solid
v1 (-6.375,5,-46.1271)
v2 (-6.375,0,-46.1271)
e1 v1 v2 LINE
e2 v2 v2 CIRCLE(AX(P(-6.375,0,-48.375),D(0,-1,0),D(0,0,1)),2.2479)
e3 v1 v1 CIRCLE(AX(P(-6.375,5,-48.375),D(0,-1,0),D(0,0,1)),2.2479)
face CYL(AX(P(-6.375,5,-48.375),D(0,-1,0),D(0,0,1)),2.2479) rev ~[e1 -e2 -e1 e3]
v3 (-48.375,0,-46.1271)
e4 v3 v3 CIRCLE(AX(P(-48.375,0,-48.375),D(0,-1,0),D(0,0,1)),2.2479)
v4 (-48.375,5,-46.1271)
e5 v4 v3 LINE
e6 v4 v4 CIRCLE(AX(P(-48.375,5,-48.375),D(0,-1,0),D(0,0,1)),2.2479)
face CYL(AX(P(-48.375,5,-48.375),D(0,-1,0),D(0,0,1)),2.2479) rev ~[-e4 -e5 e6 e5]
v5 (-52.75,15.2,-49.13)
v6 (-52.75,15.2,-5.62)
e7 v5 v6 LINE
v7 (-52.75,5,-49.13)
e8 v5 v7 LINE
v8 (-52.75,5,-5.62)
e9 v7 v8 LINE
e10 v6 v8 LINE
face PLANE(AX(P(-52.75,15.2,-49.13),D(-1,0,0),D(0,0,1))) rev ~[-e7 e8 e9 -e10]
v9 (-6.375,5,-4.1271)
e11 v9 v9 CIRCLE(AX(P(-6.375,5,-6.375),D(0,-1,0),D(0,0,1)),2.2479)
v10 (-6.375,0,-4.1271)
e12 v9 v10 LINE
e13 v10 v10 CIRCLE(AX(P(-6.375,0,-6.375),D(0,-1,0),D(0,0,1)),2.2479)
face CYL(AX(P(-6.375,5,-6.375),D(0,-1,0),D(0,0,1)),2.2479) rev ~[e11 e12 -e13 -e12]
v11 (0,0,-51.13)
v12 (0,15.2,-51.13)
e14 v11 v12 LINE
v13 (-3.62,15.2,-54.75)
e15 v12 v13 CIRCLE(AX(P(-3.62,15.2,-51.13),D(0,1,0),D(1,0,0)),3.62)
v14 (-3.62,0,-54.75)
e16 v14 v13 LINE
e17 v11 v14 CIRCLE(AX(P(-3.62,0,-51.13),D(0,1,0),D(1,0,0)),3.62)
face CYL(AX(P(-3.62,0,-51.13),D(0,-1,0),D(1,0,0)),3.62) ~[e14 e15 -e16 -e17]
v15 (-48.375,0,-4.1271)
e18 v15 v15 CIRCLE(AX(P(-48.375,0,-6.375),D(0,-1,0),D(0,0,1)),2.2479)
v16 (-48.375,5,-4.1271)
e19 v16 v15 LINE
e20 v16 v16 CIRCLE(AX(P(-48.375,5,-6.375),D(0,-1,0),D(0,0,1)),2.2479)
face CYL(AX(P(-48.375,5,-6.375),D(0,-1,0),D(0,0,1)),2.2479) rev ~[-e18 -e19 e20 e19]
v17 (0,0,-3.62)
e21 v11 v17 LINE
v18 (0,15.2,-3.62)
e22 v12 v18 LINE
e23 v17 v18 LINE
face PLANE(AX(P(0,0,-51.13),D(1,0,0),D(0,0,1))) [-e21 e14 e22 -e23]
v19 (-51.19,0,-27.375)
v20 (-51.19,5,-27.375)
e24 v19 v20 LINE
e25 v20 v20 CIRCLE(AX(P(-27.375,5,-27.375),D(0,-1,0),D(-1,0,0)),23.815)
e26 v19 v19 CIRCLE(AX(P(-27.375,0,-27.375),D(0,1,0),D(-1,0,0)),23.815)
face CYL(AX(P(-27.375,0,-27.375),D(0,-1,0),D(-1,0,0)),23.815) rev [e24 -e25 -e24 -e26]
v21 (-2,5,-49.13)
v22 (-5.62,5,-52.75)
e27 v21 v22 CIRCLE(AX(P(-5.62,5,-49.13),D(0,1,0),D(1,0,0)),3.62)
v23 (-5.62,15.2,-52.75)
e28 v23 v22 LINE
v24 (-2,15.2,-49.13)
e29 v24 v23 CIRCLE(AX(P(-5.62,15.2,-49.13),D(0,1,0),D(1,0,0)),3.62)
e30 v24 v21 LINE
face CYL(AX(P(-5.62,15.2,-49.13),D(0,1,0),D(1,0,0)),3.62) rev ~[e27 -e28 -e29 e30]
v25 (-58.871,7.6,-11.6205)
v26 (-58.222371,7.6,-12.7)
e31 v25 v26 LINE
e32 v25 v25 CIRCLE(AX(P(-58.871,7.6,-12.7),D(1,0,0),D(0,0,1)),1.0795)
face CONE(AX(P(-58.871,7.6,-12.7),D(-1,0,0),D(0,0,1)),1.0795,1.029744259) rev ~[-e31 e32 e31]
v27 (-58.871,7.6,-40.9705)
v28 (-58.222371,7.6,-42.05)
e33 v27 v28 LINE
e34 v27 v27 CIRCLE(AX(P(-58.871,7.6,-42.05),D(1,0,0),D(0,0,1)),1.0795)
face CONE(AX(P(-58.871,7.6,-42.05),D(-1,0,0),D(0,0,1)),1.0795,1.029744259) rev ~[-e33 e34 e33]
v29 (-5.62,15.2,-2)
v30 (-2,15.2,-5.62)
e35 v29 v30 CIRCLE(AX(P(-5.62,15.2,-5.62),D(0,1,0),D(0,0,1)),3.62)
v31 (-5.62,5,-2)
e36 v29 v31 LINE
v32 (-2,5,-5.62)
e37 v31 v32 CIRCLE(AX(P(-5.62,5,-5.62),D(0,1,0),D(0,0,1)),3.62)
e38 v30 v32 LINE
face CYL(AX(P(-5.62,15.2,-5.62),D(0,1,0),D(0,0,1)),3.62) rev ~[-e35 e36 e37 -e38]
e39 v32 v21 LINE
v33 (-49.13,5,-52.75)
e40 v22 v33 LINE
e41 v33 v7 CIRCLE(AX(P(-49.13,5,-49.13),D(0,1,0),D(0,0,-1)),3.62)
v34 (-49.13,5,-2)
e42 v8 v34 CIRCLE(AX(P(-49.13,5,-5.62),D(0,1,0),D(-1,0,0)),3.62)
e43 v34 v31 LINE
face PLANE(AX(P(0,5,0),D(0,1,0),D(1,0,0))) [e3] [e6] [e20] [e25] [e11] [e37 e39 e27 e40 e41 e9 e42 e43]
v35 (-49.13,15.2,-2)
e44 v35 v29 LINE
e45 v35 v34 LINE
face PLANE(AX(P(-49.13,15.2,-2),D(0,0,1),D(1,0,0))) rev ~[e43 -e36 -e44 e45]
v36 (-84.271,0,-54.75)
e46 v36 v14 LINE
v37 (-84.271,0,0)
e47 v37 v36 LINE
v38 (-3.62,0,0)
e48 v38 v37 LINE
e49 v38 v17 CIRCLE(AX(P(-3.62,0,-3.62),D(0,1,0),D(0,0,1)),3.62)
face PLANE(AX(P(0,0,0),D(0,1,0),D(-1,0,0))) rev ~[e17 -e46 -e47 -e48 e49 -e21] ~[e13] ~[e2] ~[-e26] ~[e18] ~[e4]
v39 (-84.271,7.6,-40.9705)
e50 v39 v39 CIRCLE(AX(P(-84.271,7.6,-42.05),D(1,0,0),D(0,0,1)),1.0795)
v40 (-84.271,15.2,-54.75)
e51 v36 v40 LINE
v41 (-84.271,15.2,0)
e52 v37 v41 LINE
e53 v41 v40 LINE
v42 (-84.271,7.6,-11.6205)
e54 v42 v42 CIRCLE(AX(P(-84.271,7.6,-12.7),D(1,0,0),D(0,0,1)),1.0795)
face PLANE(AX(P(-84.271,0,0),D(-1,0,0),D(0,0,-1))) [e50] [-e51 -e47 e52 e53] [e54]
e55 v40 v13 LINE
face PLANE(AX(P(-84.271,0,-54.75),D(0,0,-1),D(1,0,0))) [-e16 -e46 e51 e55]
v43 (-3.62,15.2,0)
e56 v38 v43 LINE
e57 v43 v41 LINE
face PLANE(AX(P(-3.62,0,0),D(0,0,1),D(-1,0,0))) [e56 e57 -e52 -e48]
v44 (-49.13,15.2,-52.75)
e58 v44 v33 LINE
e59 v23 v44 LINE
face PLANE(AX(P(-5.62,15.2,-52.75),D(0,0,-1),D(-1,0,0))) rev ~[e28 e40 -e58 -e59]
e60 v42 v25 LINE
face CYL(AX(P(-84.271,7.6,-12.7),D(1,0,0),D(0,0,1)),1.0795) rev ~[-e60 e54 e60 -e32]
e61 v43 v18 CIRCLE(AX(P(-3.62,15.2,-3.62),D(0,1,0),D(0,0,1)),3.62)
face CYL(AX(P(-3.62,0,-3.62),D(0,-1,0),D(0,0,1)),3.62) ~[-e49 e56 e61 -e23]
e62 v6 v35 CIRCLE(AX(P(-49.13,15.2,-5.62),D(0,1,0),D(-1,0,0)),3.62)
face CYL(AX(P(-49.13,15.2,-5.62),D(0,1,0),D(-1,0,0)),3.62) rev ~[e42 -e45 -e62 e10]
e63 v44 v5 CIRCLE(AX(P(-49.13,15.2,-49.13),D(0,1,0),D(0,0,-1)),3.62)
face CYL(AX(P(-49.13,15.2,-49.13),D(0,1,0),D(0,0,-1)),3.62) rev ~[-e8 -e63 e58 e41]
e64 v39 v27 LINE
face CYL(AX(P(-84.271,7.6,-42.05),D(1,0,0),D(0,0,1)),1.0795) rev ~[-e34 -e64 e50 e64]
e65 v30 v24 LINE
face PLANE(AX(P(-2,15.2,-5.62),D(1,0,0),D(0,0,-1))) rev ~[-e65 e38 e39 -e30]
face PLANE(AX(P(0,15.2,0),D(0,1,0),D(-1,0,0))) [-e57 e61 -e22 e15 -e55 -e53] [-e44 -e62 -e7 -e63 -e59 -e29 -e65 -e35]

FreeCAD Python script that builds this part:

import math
import FreeCAD as App
import Part
import Sketcher
Q = App.Units.Quantity

doc = App.newDocument("Part")
params = doc.addObject("Spreadsheet::Sheet", "Params")
for row, (alias, value) in enumerate([
    ("pad1_length", "15.2 mm"),
    ("sketch2_width", "1.713 in"),
    ("pocket1_length", "10.2 mm"),
    ("sketch3_diameter", "0.177 in"),
    ("hole_diameter", "0.177 in"),
    ("sketch4_diameter", "0.085 in"),
    ("hole2_diameter", "0.085 in"),
    ("hole2_depth", "1 in"),
], start=1):
    params.set(f"A{row}", alias)
    params.set(f"B{row}", "=" + value)
    params.setAlias(f"B{row}", alias)

body = doc.addObject("PartDesign::Body", "Body")

sketch1 = body.newObject("Sketcher::SketchObject", "Sketch")
sketch1.AttachmentSupport = (doc.getObject("XZ_Plane"), [""])
sketch1.MapMode = "FlatFace"
sketch1.addGeometry([
    Part.LineSegment(App.Vector(-84.271, 0, 0), App.Vector(-3.62, 0, 0)),
    Part.ArcOfCircle(Part.Circle(App.Vector(-3.62, -3.62, 0), App.Vector(0, 0, 1), 3.62), math.radians(0), math.radians(90)),
    Part.LineSegment(App.Vector(0, -3.62, 0), App.Vector(0, -51.13, 0)),
    Part.ArcOfCircle(Part.Circle(App.Vector(-3.62, -51.13, 0), App.Vector(0, 0, 1), 3.62), math.radians(-90), math.radians(0)),
    Part.LineSegment(App.Vector(-3.62, -54.75, 0), App.Vector(-84.271, -54.75, 0)),
    Part.LineSegment(App.Vector(-84.271, -54.75, 0), App.Vector(-84.271, 0, 0)),
    Part.Circle(App.Vector(-27.375, -27.375, 0), App.Vector(0, 0, 1), 23.815),
], False)
sketch1.addConstraint([
    Sketcher.Constraint("Tangent", 0, 2, 1, 2),
    Sketcher.Constraint("Tangent", 1, 1, 2, 1),
    Sketcher.Constraint("Tangent", 2, 2, 3, 2),
    Sketcher.Constraint("Tangent", 3, 1, 4, 1),
    Sketcher.Constraint("Coincident", 4, 2, 5, 1),
    Sketcher.Constraint("Coincident", 5, 2, 0, 1),
    Sketcher.Constraint("Horizontal", 0),
    Sketcher.Constraint("Vertical", 2),
    Sketcher.Constraint("Horizontal", 4),
    Sketcher.Constraint("Vertical", 5),
    Sketcher.Constraint("Equal", 1, 3),
    Sketcher.Constraint("PointOnObject", 0, 2, -1),
    Sketcher.Constraint("PointOnObject", 1, 1, -2),
    Sketcher.Constraint("Diameter", 6, Q("1.8752 in")),
    Sketcher.Constraint("Radius", 1, Q("3.62 mm")),
    Sketcher.Constraint("DistanceY", 5, 1, 5, 2, Q("2.1555 in")),
    Sketcher.Constraint("DistanceX", 4, 2, -1, 1, Q("84.271 mm")),
    Sketcher.Constraint("DistanceX", 4, 2, 6, 3, Q("2.24 in")),
    Sketcher.Constraint("DistanceY", 6, 3, -1, 1, Q("27.375 mm")),
])
pad1 = body.newObject("PartDesign::Pad", "Pad")
pad1.Profile = sketch1
pad1.setExpression("Length", "Params.pad1_length")
pad1.Reversed = True

sketch2 = body.newObject("Sketcher::SketchObject", "Sketch001")
sketch2.AttachmentSupport = (doc.getObject("XZ_Plane"), [""])
sketch2.MapMode = "FlatFace"
sketch2.AttachmentOffset = App.Placement(App.Vector(0, 0, -15.2), App.Rotation())
sketch2.addGeometry([
    Part.ArcOfCircle(Part.Circle(App.Vector(-49.13, -5.62, 0), App.Vector(0, 0, 1), 3.62), math.radians(90), math.radians(180)),
    Part.LineSegment(App.Vector(-49.13, -2, 0), App.Vector(-5.62, -2, 0)),
    Part.ArcOfCircle(Part.Circle(App.Vector(-5.62, -5.62, 0), App.Vector(0, 0, 1), 3.62), math.radians(0), math.radians(90)),
    Part.LineSegment(App.Vector(-2, -5.62, 0), App.Vector(-2, -49.13, 0)),
    Part.ArcOfCircle(Part.Circle(App.Vector(-5.62, -49.13, 0), App.Vector(0, 0, 1), 3.62), math.radians(-90), math.radians(0)),
    Part.LineSegment(App.Vector(-5.62, -52.75, 0), App.Vector(-49.13, -52.75, 0)),
    Part.ArcOfCircle(Part.Circle(App.Vector(-49.13, -49.13, 0), App.Vector(0, 0, 1), 3.62), math.radians(180), math.radians(270)),
    Part.LineSegment(App.Vector(-52.75, -49.13, 0), App.Vector(-52.75, -5.62, 0)),
], False)
sketch2.addConstraint([
    Sketcher.Constraint("Tangent", 0, 1, 1, 1),
    Sketcher.Constraint("Tangent", 1, 2, 2, 2),
    Sketcher.Constraint("Tangent", 2, 1, 3, 1),
    Sketcher.Constraint("Tangent", 3, 2, 4, 2),
    Sketcher.Constraint("Tangent", 4, 1, 5, 1),
    Sketcher.Constraint("Tangent", 5, 2, 6, 2),
    Sketcher.Constraint("Tangent", 6, 1, 7, 1),
    Sketcher.Constraint("Tangent", 7, 2, 0, 2),
    Sketcher.Constraint("Horizontal", 1),
    Sketcher.Constraint("Vertical", 3),
    Sketcher.Constraint("Horizontal", 5),
    Sketcher.Constraint("Vertical", 7),
    Sketcher.Constraint("Equal", 0, 2),
    Sketcher.Constraint("Equal", 2, 4),
    Sketcher.Constraint("Equal", 4, 6),
    Sketcher.Constraint("Equal", 5, 3),
    Sketcher.Constraint("Radius", 0, Q("3.62 mm")),
    Sketcher.Constraint("DistanceX", 1, 1, 1, 2, Q("1.713 in")),
    Sketcher.Constraint("DistanceX", 0, 3, -1, 1, Q("49.13 mm")),
    Sketcher.Constraint("DistanceY", 0, 3, -1, 1, Q("5.62 mm")),
])
sketch2.setExpression("Constraints[17]", "Params.sketch2_width")
pocket1 = body.newObject("PartDesign::Pocket", "Pocket")
pocket1.Profile = sketch2
pocket1.setExpression("Length", "Params.pocket1_length")
pocket1.Reversed = True

sketch3 = body.newObject("Sketcher::SketchObject", "Sketch002")
sketch3.AttachmentSupport = (doc.getObject("XZ_Plane"), [""])
sketch3.MapMode = "FlatFace"
sketch3.AttachmentOffset = App.Placement(App.Vector(0, 0, -5), App.Rotation())
sketch3.addGeometry([
    Part.Circle(App.Vector(-48.375, -6.375, 0), App.Vector(0, 0, 1), 2.2479),
    Part.Circle(App.Vector(-48.375, -48.375, 0), App.Vector(0, 0, 1), 2.2479),
    Part.Circle(App.Vector(-6.375, -48.375, 0), App.Vector(0, 0, 1), 2.2479),
    Part.Circle(App.Vector(-6.375, -6.375, 0), App.Vector(0, 0, 1), 2.2479),
], False)
sketch3.addConstraint([
    Sketcher.Constraint("Equal", 0, 1),
    Sketcher.Constraint("Equal", 1, 2),
    Sketcher.Constraint("Equal", 2, 3),
    Sketcher.Constraint("Horizontal", 1, 3, 2, 3),
    Sketcher.Constraint("Horizontal", 0, 3, 3, 3),
    Sketcher.Constraint("Vertical", 0, 3, 1, 3),
    Sketcher.Constraint("Vertical", 2, 3, 3, 3),
    Sketcher.Constraint("Diameter", 0, Q("0.177 in")),
    Sketcher.Constraint("DistanceX", 0, 3, -1, 1, Q("48.375 mm")),
    Sketcher.Constraint("DistanceY", 0, 3, -1, 1, Q("6.375 mm")),
    Sketcher.Constraint("DistanceY", 1, 3, -1, 1, Q("48.375 mm")),
    Sketcher.Constraint("DistanceX", 2, 3, -1, 1, Q("6.375 mm")),
])
sketch3.setExpression("Constraints[7]", "Params.sketch3_diameter")
doc.recompute()
hole = body.newObject("PartDesign::Hole", "Hole")
hole.Profile = sketch3
hole.ThreadType = "None"
hole.setExpression("Diameter", "Params.hole_diameter")
hole.DepthType = "ThroughAll"
hole.Reversed = True

sketch4 = body.newObject("Sketcher::SketchObject", "Sketch003")
sketch4.AttachmentSupport = (doc.getObject("YZ_Plane"), [""])
sketch4.MapMode = "FlatFace"
sketch4.AttachmentOffset = App.Placement(App.Vector(0, 0, -84.271), App.Rotation())
sketch4.addGeometry([
    Part.Circle(App.Vector(7.6, -42.05, 0), App.Vector(0, 0, 1), 1.0795),
    Part.Circle(App.Vector(7.6, -12.7, 0), App.Vector(0, 0, 1), 1.0795),
], False)
sketch4.addConstraint([
    Sketcher.Constraint("Equal", 0, 1),
    Sketcher.Constraint("Vertical", 0, 3, 1, 3),
    Sketcher.Constraint("Diameter", 0, Q("0.085 in")),
    Sketcher.Constraint("DistanceY", 1, 3, -1, 1, Q("0.5 in")),
    Sketcher.Constraint("DistanceY", 0, 3, -1, 1, Q("1.6555 in")),
    Sketcher.Constraint("DistanceX", -1, 1, 0, 3, Q("7.6 mm")),
])
sketch4.setExpression("Constraints[2]", "Params.sketch4_diameter")
doc.recompute()
hole2 = body.newObject("PartDesign::Hole", "Hole001")
hole2.Profile = sketch4
hole2.ThreadType = "None"
hole2.setExpression("Diameter", "Params.hole2_diameter")
hole2.DepthType = "Dimension"
hole2.setExpression("Depth", "Params.hole2_depth")
hole2.DrillPoint = "Angled"
hole2.DrillPointAngle = 118
hole2.Reversed = True

doc.recompute()
